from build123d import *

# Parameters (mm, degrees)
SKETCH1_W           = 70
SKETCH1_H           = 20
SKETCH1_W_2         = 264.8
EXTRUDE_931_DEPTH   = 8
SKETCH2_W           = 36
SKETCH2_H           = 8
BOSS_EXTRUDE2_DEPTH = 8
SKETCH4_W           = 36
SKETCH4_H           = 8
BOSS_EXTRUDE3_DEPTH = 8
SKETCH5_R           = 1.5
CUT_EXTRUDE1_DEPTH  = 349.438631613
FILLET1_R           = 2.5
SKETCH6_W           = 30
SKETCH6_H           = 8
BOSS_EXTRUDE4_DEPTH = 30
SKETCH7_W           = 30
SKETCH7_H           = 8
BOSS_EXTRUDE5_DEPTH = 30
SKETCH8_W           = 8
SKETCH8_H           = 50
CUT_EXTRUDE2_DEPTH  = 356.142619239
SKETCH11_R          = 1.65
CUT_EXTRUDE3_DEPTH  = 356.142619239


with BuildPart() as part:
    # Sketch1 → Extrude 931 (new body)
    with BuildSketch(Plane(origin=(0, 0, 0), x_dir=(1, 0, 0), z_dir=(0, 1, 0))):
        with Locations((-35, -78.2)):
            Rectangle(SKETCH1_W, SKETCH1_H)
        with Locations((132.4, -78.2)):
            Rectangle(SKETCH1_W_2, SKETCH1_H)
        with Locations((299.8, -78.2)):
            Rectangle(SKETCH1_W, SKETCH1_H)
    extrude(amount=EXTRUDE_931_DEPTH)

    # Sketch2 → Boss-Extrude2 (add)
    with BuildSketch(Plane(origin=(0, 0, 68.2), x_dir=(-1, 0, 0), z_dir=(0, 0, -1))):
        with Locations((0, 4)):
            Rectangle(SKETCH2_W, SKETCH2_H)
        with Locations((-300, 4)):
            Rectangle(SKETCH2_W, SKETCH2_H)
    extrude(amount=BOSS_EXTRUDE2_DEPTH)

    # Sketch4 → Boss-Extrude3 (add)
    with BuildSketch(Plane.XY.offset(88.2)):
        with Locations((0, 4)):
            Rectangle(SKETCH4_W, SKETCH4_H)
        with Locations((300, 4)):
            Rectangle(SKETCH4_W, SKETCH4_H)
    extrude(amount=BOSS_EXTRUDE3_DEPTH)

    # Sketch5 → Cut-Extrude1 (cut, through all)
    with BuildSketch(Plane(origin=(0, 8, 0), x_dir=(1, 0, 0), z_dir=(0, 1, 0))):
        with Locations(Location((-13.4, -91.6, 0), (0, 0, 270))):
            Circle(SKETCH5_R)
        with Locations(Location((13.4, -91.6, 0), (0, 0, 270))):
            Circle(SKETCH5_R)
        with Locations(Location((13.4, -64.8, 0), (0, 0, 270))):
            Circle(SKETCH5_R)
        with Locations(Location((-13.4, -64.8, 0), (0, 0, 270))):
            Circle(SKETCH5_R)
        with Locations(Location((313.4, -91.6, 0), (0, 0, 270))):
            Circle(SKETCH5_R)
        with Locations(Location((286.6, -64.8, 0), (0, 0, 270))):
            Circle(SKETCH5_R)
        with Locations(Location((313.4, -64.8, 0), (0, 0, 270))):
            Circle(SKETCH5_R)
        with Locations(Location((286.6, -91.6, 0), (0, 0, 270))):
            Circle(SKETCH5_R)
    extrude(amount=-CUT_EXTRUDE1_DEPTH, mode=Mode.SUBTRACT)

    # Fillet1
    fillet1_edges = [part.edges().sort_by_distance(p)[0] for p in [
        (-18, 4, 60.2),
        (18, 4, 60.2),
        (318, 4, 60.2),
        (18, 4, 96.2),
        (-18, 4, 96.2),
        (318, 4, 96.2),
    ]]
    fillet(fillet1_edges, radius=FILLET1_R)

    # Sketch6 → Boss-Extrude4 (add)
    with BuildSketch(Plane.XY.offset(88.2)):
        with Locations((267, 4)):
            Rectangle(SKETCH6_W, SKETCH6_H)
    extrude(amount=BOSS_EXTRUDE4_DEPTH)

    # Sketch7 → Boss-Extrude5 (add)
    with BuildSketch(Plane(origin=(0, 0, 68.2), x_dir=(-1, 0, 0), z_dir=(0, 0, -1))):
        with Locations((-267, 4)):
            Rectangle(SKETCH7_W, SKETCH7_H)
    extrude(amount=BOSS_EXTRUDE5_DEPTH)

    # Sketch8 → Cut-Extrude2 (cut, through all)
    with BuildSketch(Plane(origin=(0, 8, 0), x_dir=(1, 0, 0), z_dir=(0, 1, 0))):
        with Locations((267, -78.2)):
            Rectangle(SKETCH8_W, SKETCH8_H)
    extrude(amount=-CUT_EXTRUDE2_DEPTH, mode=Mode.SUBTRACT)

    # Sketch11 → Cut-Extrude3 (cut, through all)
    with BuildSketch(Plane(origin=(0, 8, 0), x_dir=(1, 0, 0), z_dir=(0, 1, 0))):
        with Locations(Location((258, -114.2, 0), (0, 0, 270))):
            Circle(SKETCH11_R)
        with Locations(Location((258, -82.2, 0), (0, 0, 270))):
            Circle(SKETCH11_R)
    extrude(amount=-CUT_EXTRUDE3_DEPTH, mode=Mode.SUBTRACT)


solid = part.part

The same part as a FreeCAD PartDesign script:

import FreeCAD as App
import Part
import Sketcher


def edges_at(feature, points):
    """Names of the edges that pass closest to the given points."""
    edges = feature.Shape.Edges
    near = lambda p: min(range(len(edges)), key=lambda i: edges[i].distToShape(Part.Vertex(*p))[0])
    return sorted({f"Edge{near(p) + 1}" for p in points})

doc = App.newDocument("Part")
body = doc.addObject("PartDesign::Body", "Body")

# Sketch on XZ plane
sketch1 = body.newObject("Sketcher::SketchObject", "Sketch")
sketch1.AttachmentSupport = (doc.getObject("XZ_Plane"), [""])
sketch1.MapMode = "FlatFace"
sketch1.addGeometry([
    Part.LineSegment(App.Vector(-70, 68, 0), App.Vector(-70, 88, 0)),
    Part.LineSegment(App.Vector(-70, 88, 0), App.Vector(335, 88, 0)),
    Part.LineSegment(App.Vector(335, 88, 0), App.Vector(335, 68, 0)),
    Part.LineSegment(App.Vector(335, 68, 0), App.Vector(-70, 68, 0)),
], False)
sketch1.addConstraint([
    Sketcher.Constraint("Coincident", 0, 2, 1, 1),
    Sketcher.Constraint("Coincident", 1, 2, 2, 1),
    Sketcher.Constraint("Coincident", 2, 2, 3, 1),
    Sketcher.Constraint("Coincident", 3, 2, 0, 1),
    Sketcher.Constraint("Vertical", 0),
    Sketcher.Constraint("Horizontal", 1),
    Sketcher.Constraint("Vertical", 2),
    Sketcher.Constraint("Horizontal", 3),
    Sketcher.Constraint("DistanceY", 0, 1, 0, 2, 20.0),
    Sketcher.Constraint("DistanceX", 1, 1, 1, 2, 404.8),
    Sketcher.Constraint("DistanceX", 0, 2, -1, 1, 70.0),
    Sketcher.Constraint("DistanceY", -1, 1, 0, 2, 88.2),
])
pad1 = body.newObject("PartDesign::Pad", "Pad")
pad1.Profile = sketch1
pad1.Length = 8
pad1.Reversed = True

# Sketch on XY plane
sketch2 = body.newObject("Sketcher::SketchObject", "Sketch001")
sketch2.AttachmentSupport = (doc.getObject("XY_Plane"), [""])
sketch2.MapMode = "FlatFace"
sketch2.AttachmentOffset = App.Placement(App.Vector(0, 0, 68.2), App.Rotation())
sketch2.addGeometry([
    Part.LineSegment(App.Vector(18, 8, 0), App.Vector(18, 0, 0)),  # 0
    Part.LineSegment(App.Vector(18, 0, 0), App.Vector(-18, 0, 0)),  # 1
    Part.LineSegment(App.Vector(-18, 0, 0), App.Vector(-18, 8, 0)),  # 2
    Part.LineSegment(App.Vector(-18, 8, 0), App.Vector(18, 8, 0)),  # 3
    Part.LineSegment(App.Vector(318, 8, 0), App.Vector(318, 0, 0)),  # 4
    Part.LineSegment(App.Vector(318, 0, 0), App.Vector(282, 0, 0)),  # 5
    Part.LineSegment(App.Vector(282, 0, 0), App.Vector(282, 8, 0)),  # 6
    Part.LineSegment(App.Vector(282, 8, 0), App.Vector(318, 8, 0)),  # 7
], False)
sketch2.addConstraint([
    Sketcher.Constraint("Coincident", 0, 2, 1, 1),
    Sketcher.Constraint("Coincident", 1, 2, 2, 1),
    Sketcher.Constraint("Coincident", 2, 2, 3, 1),
    Sketcher.Constraint("Coincident", 3, 2, 0, 1),
    Sketcher.Constraint("Coincident", 4, 2, 5, 1),
    Sketcher.Constraint("Coincident", 5, 2, 6, 1),
    Sketcher.Constraint("Coincident", 6, 2, 7, 1),
    Sketcher.Constraint("Coincident", 7, 2, 4, 1),
    Sketcher.Constraint("Vertical", 0),
    Sketcher.Constraint("Horizontal", 1),
    Sketcher.Constraint("Vertical", 2),
    Sketcher.Constraint("Horizontal", 3),
    Sketcher.Constraint("Vertical", 4),
    Sketcher.Constraint("Horizontal", 5),
    Sketcher.Constraint("Vertical", 6),
    Sketcher.Constraint("Horizontal", 7),
    Sketcher.Constraint("Symmetric", 0, 2, 1, 2, -1, 1),
    Sketcher.Constraint("PointOnObject", 4, 2, -1),
    Sketcher.Constraint("Horizontal", 3, 2, 6, 2),
    Sketcher.Constraint("Equal", 3, 5),
    Sketcher.Constraint("DistanceX", 1, 2, 1, 1, 36.0),
    Sketcher.Constraint("DistanceY", 0, 2, 0, 1, 8.0),
    Sketcher.Constraint("DistanceX", -1, 1, 4, 2, 318.0),
])
pad2 = body.newObject("PartDesign::Pad", "Pad001")
pad2.Profile = sketch2
pad2.Length = 8
pad2.Reversed = True

# Sketch on XY plane
sketch3 = body.newObject("Sketcher::SketchObject", "Sketch002")
sketch3.AttachmentSupport = (doc.getObject("XY_Plane"), [""])
sketch3.MapMode = "FlatFace"
sketch3.AttachmentOffset = App.Placement(App.Vector(0, 0, 88.2), App.Rotation())
sketch3.addGeometry([
    Part.LineSegment(App.Vector(-18, 8, 0), App.Vector(-18, 0, 0)),  # 0
    Part.LineSegment(App.Vector(-18, 0, 0), App.Vector(18, 0, 0)),  # 1
    Part.LineSegment(App.Vector(18, 0, 0), App.Vector(18, 8, 0)),  # 2
    Part.LineSegment(App.Vector(18, 8, 0), App.Vector(-18, 8, 0)),  # 3
    Part.LineSegment(App.Vector(282, 8, 0), App.Vector(282, 0, 0)),  # 4
    Part.LineSegment(App.Vector(282, 0, 0), App.Vector(318, 0, 0)),  # 5
    Part.LineSegment(App.Vector(318, 0, 0), App.Vector(318, 8, 0)),  # 6
    Part.LineSegment(App.Vector(318, 8, 0), App.Vector(282, 8, 0)),  # 7
], False)
sketch3.addConstraint([
    Sketcher.Constraint("Coincident", 0, 2, 1, 1),
    Sketcher.Constraint("Coincident", 1, 2, 2, 1),
    Sketcher.Constraint("Coincident", 2, 2, 3, 1),
    Sketcher.Constraint("Coincident", 3, 2, 0, 1),
    Sketcher.Constraint("Coincident", 4, 2, 5, 1),
    Sketcher.Constraint("Coincident", 5, 2, 6, 1),
    Sketcher.Constraint("Coincident", 6, 2, 7, 1),
    Sketcher.Constraint("Coincident", 7, 2, 4, 1),
    Sketcher.Constraint("Vertical", 0),
    Sketcher.Constraint("Horizontal", 1),
    Sketcher.Constraint("Vertical", 2),
    Sketcher.Constraint("Horizontal", 3),
    Sketcher.Constraint("Vertical", 4),
    Sketcher.Constraint("Horizontal", 5),
    Sketcher.Constraint("Vertical", 6),
    Sketcher.Constraint("Horizontal", 7),
    Sketcher.Constraint("Symmetric", 0, 2, 1, 2, -1, 1),
    Sketcher.Constraint("PointOnObject", 4, 2, -1),
    Sketcher.Constraint("Horizontal", 3, 2, 6, 2),
    Sketcher.Constraint("Equal", 3, 5),
    Sketcher.Constraint("DistanceX", 1, 1, 1, 2, 36.0),
    Sketcher.Constraint("DistanceY", 0, 2, 0, 1, 8.0),
    Sketcher.Constraint("DistanceX", -1, 1, 4, 2, 282.0),
])
pad3 = body.newObject("PartDesign::Pad", "Pad002")
pad3.Profile = sketch3
pad3.Length = 8

# Sketch on XZ plane
sketch4 = body.newObject("Sketcher::SketchObject", "Sketch003")
sketch4.AttachmentSupport = (doc.getObject("XZ_Plane"), [""])
sketch4.MapMode = "FlatFace"
sketch4.AttachmentOffset = App.Placement(App.Vector(0, 0, -8), App.Rotation())
sketch4.addGeometry([
    Part.Circle(App.Vector(-13.4, 91.6, 0), App.Vector(0, 0, 1), 1.5),  # 0
    Part.Circle(App.Vector(13.4, 91.6, 0), App.Vector(0, 0, 1), 1.5),  # 1
    Part.Circle(App.Vector(13.4, 64.8, 0), App.Vector(0, 0, 1), 1.5),  # 2
    Part.Circle(App.Vector(-13.4, 64.8, 0), App.Vector(0, 0, 1), 1.5),  # 3
    Part.Circle(App.Vector(313.4, 91.6, 0), App.Vector(0, 0, 1), 1.5),  # 4
    Part.Circle(App.Vector(286.6, 64.8, 0), App.Vector(0, 0, 1), 1.5),  # 5
    Part.Circle(App.Vector(313.4, 64.8, 0), App.Vector(0, 0, 1), 1.5),  # 6
    Part.Circle(App.Vector(286.6, 91.6, 0), App.Vector(0, 0, 1), 1.5),  # 7
], False)
sketch4.addConstraint([
    Sketcher.Constraint("Equal", 0, 1),
    Sketcher.Constraint("Equal", 1, 2),
    Sketcher.Constraint("Equal", 2, 3),
    Sketcher.Constraint("Equal", 3, 4),
    Sketcher.Constraint("Equal", 4, 5),
    Sketcher.Constraint("Equal", 5, 6),
    Sketcher.Constraint("Equal", 6, 7),
    Sketcher.Constraint("Symmetric", 0, 3, 1, 3, -2),
    Sketcher.Constraint("Symmetric", 2, 3, 3, 3, -2),
    Sketcher.Constraint("Horizontal", 1, 3, 4, 3),
    Sketcher.Constraint("Horizontal", 3, 3, 5, 3),
    Sketcher.Constraint("Horizontal", 5, 3, 6, 3),
    Sketcher.Constraint("Horizontal", 4, 3, 7, 3),
    Sketcher.Constraint("Vertical", 1, 3, 2, 3),
    Sketcher.Constraint("Vertical", 4, 3, 6, 3),
    Sketcher.Constraint("Vertical", 5, 3, 7, 3),
    Sketcher.Constraint("Diameter", 0, 3.0),
    Sketcher.Constraint("DistanceX", 1, 3, 4, 3, 300.0),
    Sketcher.Constraint("DistanceX", 3, 3, 5, 3, 300.0),
    Sketcher.Constraint("DistanceX", 0, 3, -1, 1, 13.4),
    Sketcher.Constraint("DistanceY", -1, 1, 0, 3, 91.6),
    Sketcher.Constraint("DistanceY", -1, 1, 2, 3, 64.8),
])
pocket1 = body.newObject("PartDesign::Pocket", "Pocket")
pocket1.Profile = sketch4
pocket1.Type = "ThroughAll"
pocket1.Reversed = True
doc.recompute()

fillet = body.newObject("PartDesign::Fillet", "Fillet")
fillet.Base = (pocket1, edges_at(pocket1, [
    (-18, 4, 60.2),
    (18, 4, 60.2),
    (318, 4, 60.2),
    (18, 4, 96.2),
    (-18, 4, 96.2),
    (318, 4, 96.2),
]))
fillet.Radius = 2.5

# Sketch on XY plane
sketch5 = body.newObject("Sketcher::SketchObject", "Sketch004")
sketch5.AttachmentSupport = (doc.getObject("XY_Plane"), [""])
sketch5.MapMode = "FlatFace"
sketch5.AttachmentOffset = App.Placement(App.Vector(0, 0, 88.2), App.Rotation())
sketch5.addGeometry([
    Part.LineSegment(App.Vector(252, 8, 0), App.Vector(252, 0, 0)),
    Part.LineSegment(App.Vector(252, 0, 0), App.Vector(282, 0, 0)),
    Part.LineSegment(App.Vector(282, 0, 0), App.Vector(282, 8, 0)),
    Part.LineSegment(App.Vector(282, 8, 0), App.Vector(252, 8, 0)),
], False)
sketch5.addConstraint([
    Sketcher.Constraint("Coincident", 0, 2, 1, 1),
    Sketcher.Constraint("Coincident", 1, 2, 2, 1),
    Sketcher.Constraint("Coincident", 2, 2, 3, 1),
    Sketcher.Constraint("Coincident", 3, 2, 0, 1),
    Sketcher.Constraint("Vertical", 0),
    Sketcher.Constraint("Horizontal", 1),
    Sketcher.Constraint("Vertical", 2),
    Sketcher.Constraint("Horizontal", 3),
    Sketcher.Constraint("PointOnObject", 0, 2, -1),
    Sketcher.Constraint("DistanceX", 1, 1, 1, 2, 30.0),
    Sketcher.Constraint("DistanceY", 0, 2, 0, 1, 8.0),
    Sketcher.Constraint("DistanceX", -1, 1, 0, 2, 252.0),
])
pad4 = body.newObject("PartDesign::Pad", "Pad003")
pad4.Profile = sketch5
pad4.Length = 30

# Sketch on XY plane
sketch6 = body.newObject("Sketcher::SketchObject", "Sketch005")
sketch6.AttachmentSupport = (doc.getObject("XY_Plane"), [""])
sketch6.MapMode = "FlatFace"
sketch6.AttachmentOffset = App.Placement(App.Vector(0, 0, 68.2), App.Rotation())
sketch6.addGeometry([
    Part.LineSegment(App.Vector(282, 8, 0), App.Vector(282, 0, 0)),
    Part.LineSegment(App.Vector(282, 0, 0), App.Vector(252, 0, 0)),
    Part.LineSegment(App.Vector(252, 0, 0), App.Vector(252, 8, 0)),
    Part.LineSegment(App.Vector(252, 8, 0), App.Vector(282, 8, 0)),
], False)
sketch6.addConstraint([
    Sketcher.Constraint("Coincident", 0, 2, 1, 1),
    Sketcher.Constraint("Coincident", 1, 2, 2, 1),
    Sketcher.Constraint("Coincident", 2, 2, 3, 1),
    Sketcher.Constraint("Coincident", 3, 2, 0, 1),
    Sketcher.Constraint("Vertical", 0),
    Sketcher.Constraint("Horizontal", 1),
    Sketcher.Constraint("Vertical", 2),
    Sketcher.Constraint("Horizontal", 3),
    Sketcher.Constraint("PointOnObject", 0, 2, -1),
    Sketcher.Constraint("DistanceX", 1, 2, 1, 1, 30.0),
    Sketcher.Constraint("DistanceY", 0, 2, 0, 1, 8.0),
    Sketcher.Constraint("DistanceX", -1, 1, 0, 2, 282.0),
])
pad5 = body.newObject("PartDesign::Pad", "Pad004")
pad5.Profile = sketch6
pad5.Length = 30
pad5.Reversed = True

# Sketch on XZ plane
sketch7 = body.newObject("Sketcher::SketchObject", "Sketch006")
sketch7.AttachmentSupport = (doc.getObject("XZ_Plane"), [""])
sketch7.MapMode = "FlatFace"
sketch7.AttachmentOffset = App.Placement(App.Vector(0, 0, -8), App.Rotation())
sketch7.addGeometry([
    Part.LineSegment(App.Vector(263, 53, 0), App.Vector(263, 103, 0)),
    Part.LineSegment(App.Vector(263, 103, 0), App.Vector(271, 103, 0)),
    Part.LineSegment(App.Vector(271, 103, 0), App.Vector(271, 53, 0)),
    Part.LineSegment(App.Vector(271, 53, 0), App.Vector(263, 53, 0)),
], False)
sketch7.addConstraint([
    Sketcher.Constraint("Coincident", 0, 2, 1, 1),
    Sketcher.Constraint("Coincident", 1, 2, 2, 1),
    Sketcher.Constraint("Coincident", 2, 2, 3, 1),
    Sketcher.Constraint("Coincident", 3, 2, 0, 1),
    Sketcher.Constraint("Vertical", 0),
    Sketcher.Constraint("Horizontal", 1),
    Sketcher.Constraint("Vertical", 2),
    Sketcher.Constraint("Horizontal", 3),
    Sketcher.Constraint("DistanceX", 1, 1, 1, 2, 8.0),
    Sketcher.Constraint("DistanceY", 0, 1, 0, 2, 50.0),
    Sketcher.Constraint("DistanceX", -1, 1, 0, 2, 263.0),
    Sketcher.Constraint("DistanceY", -1, 1, 0, 2, 103.2),
])
pocket2 = body.newObject("PartDesign::Pocket", "Pocket001")
pocket2.Profile = sketch7
pocket2.Type = "ThroughAll"
pocket2.Reversed = True

# Sketch on XZ plane
sketch8 = body.newObject("Sketcher::SketchObject", "Sketch007")
sketch8.AttachmentSupport = (doc.getObject("XZ_Plane"), [""])
sketch8.MapMode = "FlatFace"
sketch8.AttachmentOffset = App.Placement(App.Vector(0, 0, -8), App.Rotation())
sketch8.addGeometry([
    Part.Circle(App.Vector(258, 114.2, 0), App.Vector(0, 0, 1), 1.6),
    Part.Circle(App.Vector(258, 82.2, 0), App.Vector(0, 0, 1), 1.6),
], False)
sketch8.addConstraint([
    Sketcher.Constraint("Equal", 0, 1),
    Sketcher.Constraint("Vertical", 0, 3, 1, 3),
    Sketcher.Constraint("Diameter", 0, 3.3),
    Sketcher.Constraint("DistanceX", -1, 1, 0, 3, 258.0),
    Sketcher.Constraint("DistanceY", 1, 3, 0, 3, 32.0),
    Sketcher.Constraint("DistanceY", -1, 1, 0, 3, 114.2),
])
pocket3 = body.newObject("PartDesign::Pocket", "Pocket002")
pocket3.Profile = sketch8
pocket3.Type = "ThroughAll"
pocket3.Reversed = True

doc.recompute()
